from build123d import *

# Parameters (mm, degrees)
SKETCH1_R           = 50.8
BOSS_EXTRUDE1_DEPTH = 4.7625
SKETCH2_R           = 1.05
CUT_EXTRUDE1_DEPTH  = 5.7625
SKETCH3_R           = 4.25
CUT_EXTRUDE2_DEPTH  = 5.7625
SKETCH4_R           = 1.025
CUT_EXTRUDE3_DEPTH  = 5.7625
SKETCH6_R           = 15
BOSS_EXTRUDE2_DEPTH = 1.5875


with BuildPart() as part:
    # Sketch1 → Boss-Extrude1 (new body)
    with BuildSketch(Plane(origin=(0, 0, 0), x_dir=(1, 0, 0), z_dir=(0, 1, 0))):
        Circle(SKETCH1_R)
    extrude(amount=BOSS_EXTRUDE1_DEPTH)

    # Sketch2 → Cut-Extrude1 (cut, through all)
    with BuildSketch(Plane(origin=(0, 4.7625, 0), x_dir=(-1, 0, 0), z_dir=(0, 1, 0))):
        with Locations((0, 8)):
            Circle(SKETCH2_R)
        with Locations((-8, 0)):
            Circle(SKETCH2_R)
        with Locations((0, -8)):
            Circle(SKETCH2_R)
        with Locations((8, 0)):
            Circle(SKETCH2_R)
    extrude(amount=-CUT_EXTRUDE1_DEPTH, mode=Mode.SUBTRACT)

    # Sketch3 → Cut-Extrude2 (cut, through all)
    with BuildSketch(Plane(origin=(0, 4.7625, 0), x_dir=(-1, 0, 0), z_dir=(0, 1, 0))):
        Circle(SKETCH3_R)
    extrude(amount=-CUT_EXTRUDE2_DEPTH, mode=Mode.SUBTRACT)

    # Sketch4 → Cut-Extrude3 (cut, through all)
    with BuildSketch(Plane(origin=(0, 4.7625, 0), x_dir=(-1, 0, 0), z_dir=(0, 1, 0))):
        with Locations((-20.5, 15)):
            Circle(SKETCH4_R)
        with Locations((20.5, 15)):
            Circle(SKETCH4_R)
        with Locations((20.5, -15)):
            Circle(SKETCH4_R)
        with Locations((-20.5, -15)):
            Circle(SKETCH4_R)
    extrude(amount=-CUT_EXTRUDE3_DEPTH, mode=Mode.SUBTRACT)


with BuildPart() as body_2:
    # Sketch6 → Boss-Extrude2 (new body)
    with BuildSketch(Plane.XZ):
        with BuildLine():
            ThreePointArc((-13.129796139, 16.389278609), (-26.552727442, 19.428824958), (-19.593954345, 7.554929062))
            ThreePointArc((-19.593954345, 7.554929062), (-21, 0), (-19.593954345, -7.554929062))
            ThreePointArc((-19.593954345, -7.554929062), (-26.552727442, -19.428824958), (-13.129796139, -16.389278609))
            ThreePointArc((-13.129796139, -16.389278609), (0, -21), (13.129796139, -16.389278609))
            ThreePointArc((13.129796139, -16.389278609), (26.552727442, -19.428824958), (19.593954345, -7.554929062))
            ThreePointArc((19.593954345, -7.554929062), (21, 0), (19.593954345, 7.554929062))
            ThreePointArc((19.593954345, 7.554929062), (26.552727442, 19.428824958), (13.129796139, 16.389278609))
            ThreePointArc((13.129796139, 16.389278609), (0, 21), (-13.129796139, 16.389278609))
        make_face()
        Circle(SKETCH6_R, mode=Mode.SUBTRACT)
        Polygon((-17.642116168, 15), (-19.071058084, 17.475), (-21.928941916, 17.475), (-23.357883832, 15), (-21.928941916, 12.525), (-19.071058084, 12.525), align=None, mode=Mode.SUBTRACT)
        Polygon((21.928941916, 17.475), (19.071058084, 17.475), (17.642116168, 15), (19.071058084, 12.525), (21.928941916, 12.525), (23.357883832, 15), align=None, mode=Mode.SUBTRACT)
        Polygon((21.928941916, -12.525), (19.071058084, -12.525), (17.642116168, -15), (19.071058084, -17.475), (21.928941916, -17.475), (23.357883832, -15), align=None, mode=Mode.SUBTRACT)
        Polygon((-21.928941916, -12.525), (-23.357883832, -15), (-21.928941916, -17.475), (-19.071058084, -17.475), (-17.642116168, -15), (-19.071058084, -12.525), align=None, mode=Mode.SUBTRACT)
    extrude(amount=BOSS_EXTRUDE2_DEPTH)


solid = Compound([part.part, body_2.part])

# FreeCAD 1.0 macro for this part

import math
import FreeCAD as App
import Part
import Sketcher

V = App.Vector
Q = App.Units.Quantity


def add_polygon(sketch, points):
    """Adds a closed chain of lines whose ends are joined by coincident constraints."""
    first, n = sketch.GeometryCount, len(points)
    for a, b in zip(points, points[1:] + points[:1]):
        sketch.addGeometry(Part.LineSegment(App.Vector(*a, 0), App.Vector(*b, 0)), False)
    for i in range(n):
        sketch.addConstraint(Sketcher.Constraint("Coincident", first + i, 2, first + (i + 1) % n, 1))

doc = App.newDocument("Part")
body = doc.addObject("PartDesign::Body", "Body")

# Sketch on XZ plane
sketch1 = body.newObject("Sketcher::SketchObject", "Sketch")
sketch1.AttachmentSupport = (doc.getObject("XZ_Plane"), [""])
sketch1.MapMode = "FlatFace"
sketch1.addGeometry(Part.Circle(V(0, 0, 0), V(0, 0, 1), 51), False)
sketch1.addConstraint([
    Sketcher.Constraint("Coincident", 0, 3, -1, 1),
    Sketcher.Constraint("Diameter", 0, Q("101.6 mm")),
])
pad1 = body.newObject("PartDesign::Pad", "Pad")
pad1.Profile = sketch1
pad1.Length = 4.7625
pad1.Reversed = True

# Sketch on XZ plane
sketch2 = body.newObject("Sketcher::SketchObject", "Sketch001")
sketch2.AttachmentSupport = (doc.getObject("XZ_Plane"), [""])
sketch2.MapMode = "FlatFace"
sketch2.AttachmentOffset = App.Placement(V(0, 0, -4.7625), App.Rotation())
sketch2.addGeometry([
    Part.Circle(V(0, 8, 0), V(0, 0, 1), 1.1),
    Part.Circle(V(8, 0, 0), V(0, 0, 1), 1.1),
    Part.Circle(V(0, -8, 0), V(0, 0, 1), 1.1),
    Part.Circle(V(-8, 0, 0), V(0, 0, 1), 1.1),
], False)
sketch2.addConstraint([
    Sketcher.Constraint("Equal", 0, 1),
    Sketcher.Constraint("Equal", 1, 2),
    Sketcher.Constraint("Equal", 2, 3),
    Sketcher.Constraint("Symmetric", 0, 3, 2, 3, -1, 1),
    Sketcher.Constraint("Symmetric", 1, 3, 3, 3, -1, 1),
    Sketcher.Constraint("PointOnObject", 0, 3, -2),
    Sketcher.Constraint("PointOnObject", 1, 3, -1),
    Sketcher.Constraint("Diameter", 0, Q("2.1 mm")),
    Sketcher.Constraint("DistanceY", -1, 1, 0, 3, Q("8 mm")),
    Sketcher.Constraint("DistanceX", -1, 1, 1, 3, Q("8 mm")),
])
pocket1 = body.newObject("PartDesign::Pocket", "Pocket")
pocket1.Profile = sketch2
pocket1.Type = "ThroughAll"
pocket1.Reversed = True

# Sketch on XZ plane
sketch3 = body.newObject("Sketcher::SketchObject", "Sketch002")
sketch3.AttachmentSupport = (doc.getObject("XZ_Plane"), [""])
sketch3.MapMode = "FlatFace"
sketch3.AttachmentOffset = App.Placement(V(0, 0, -4.7625), App.Rotation())
sketch3.addGeometry(Part.Circle(V(0, 0, 0), V(0, 0, 1), 4.2), False)
sketch3.addConstraint([
    Sketcher.Constraint("Coincident", 0, 3, -1, 1),
    Sketcher.Constraint("Diameter", 0, Q("8.5 mm")),
])
pocket2 = body.newObject("PartDesign::Pocket", "Pocket001")
pocket2.Profile = sketch3
pocket2.Type = "ThroughAll"
pocket2.Reversed = True

# Sketch on XZ plane
sketch4 = body.newObject("Sketcher::SketchObject", "Sketch003")
sketch4.AttachmentSupport = (doc.getObject("XZ_Plane"), [""])
sketch4.MapMode = "FlatFace"
sketch4.AttachmentOffset = App.Placement(V(0, 0, -4.7625), App.Rotation())
sketch4.addGeometry([
    Part.Circle(V(20.5, 15, 0), V(0, 0, 1), 1),
    Part.Circle(V(-20.5, 15, 0), V(0, 0, 1), 1),
    Part.Circle(V(-20.5, -15, 0), V(0, 0, 1), 1),
    Part.Circle(V(20.5, -15, 0), V(0, 0, 1), 1),
], False)
sketch4.addConstraint([
    Sketcher.Constraint("Equal", 0, 1),
    Sketcher.Constraint("Equal", 1, 2),
    Sketcher.Constraint("Equal", 2, 3),
    Sketcher.Constraint("Symmetric", 0, 3, 2, 3, -1, 1),
    Sketcher.Constraint("Symmetric", 1, 3, 3, 3, -1, 1),
    Sketcher.Constraint("Symmetric", 0, 3, 1, 3, -2),
    Sketcher.Constraint("Diameter", 0, Q("2.05 mm")),
    Sketcher.Constraint("DistanceY", -1, 1, 0, 3, Q("15 mm")),
    Sketcher.Constraint("DistanceX", 1, 3, 0, 3, Q("41 mm")),
])
pocket3 = body.newObject("PartDesign::Pocket", "Pocket002")
pocket3.Profile = sketch4
pocket3.Type = "ThroughAll"
pocket3.Reversed = True
body2 = doc.addObject("PartDesign::Body", "Body001")

# Sketch on XZ plane
sketch5 = body2.newObject("Sketcher::SketchObject", "Sketch004")
sketch5.AttachmentSupport = (doc.getObject("XZ_Plane001"), [""])
sketch5.MapMode = "FlatFace"
sketch5.addGeometry(Part.ArcOfCircle(Part.Circle(V(-20.5, 15, 0), V(0, 0, 1), 7.5), math.radians(11), math.radians(277)), False)  # 0
sketch5.addGeometry(Part.ArcOfCircle(Part.Circle(V(0, 0, 0), V(0, 0, 1), 21), math.radians(159), math.radians(201)), False)  # 1
sketch5.addGeometry(Part.ArcOfCircle(Part.Circle(V(-20.5, -15, 0), V(0, 0, 1), 7.5), math.radians(83), math.radians(349)), False)  # 2
sketch5.addGeometry(Part.ArcOfCircle(Part.Circle(V(0, 0, 0), V(0, 0, 1), 21), math.radians(-129), math.radians(-51)), False)  # 3
sketch5.addGeometry(Part.ArcOfCircle(Part.Circle(V(20.5, -15, 0), V(0, 0, 1), 7.5), math.radians(-169), math.radians(97)), False)  # 4
sketch5.addGeometry(Part.ArcOfCircle(Part.Circle(V(0, 0, 0), V(0, 0, 1), 21), math.radians(-21), math.radians(21)), False)  # 5
sketch5.addGeometry(Part.ArcOfCircle(Part.Circle(V(20.5, 15, 0), V(0, 0, 1), 7.5), math.radians(-97), math.radians(169)), False)  # 6
sketch5.addGeometry(Part.ArcOfCircle(Part.Circle(V(0, 0, 0), V(0, 0, 1), 21), math.radians(51), math.radians(129)), False)  # 7
add_polygon(sketch5, [(-23.4, -15), (-21.9, -12.5), (-19.1, -12.5), (-17.6, -15), (-19.1, -17.5), (-21.9, -17.5)])  # lines 8-13
add_polygon(sketch5, [(19.1, -12.5), (21.9, -12.5), (23.4, -15), (21.9, -17.5), (19.1, -17.5), (17.6, -15)])  # lines 14-19
add_polygon(sketch5, [(-19.1, 17.5), (-17.6, 15), (-19.1, 12.5), (-21.9, 12.5), (-23.4, 15), (-21.9, 17.5)])  # lines 20-25
sketch5.addGeometry(Part.Circle(V(0, 0, 0), V(0, 0, 1), 15), False)  # 26
add_polygon(sketch5, [(19.1, 17.5), (21.9, 17.5), (23.4, 15), (21.9, 12.5), (19.1, 12.5), (17.6, 15)])  # lines 27-32
sketch5.addConstraint([
    Sketcher.Constraint("Coincident", 0, 2, 1, 1),
    Sketcher.Constraint("Coincident", 1, 2, 2, 1),
    Sketcher.Constraint("Coincident", 2, 2, 3, 1),
    Sketcher.Constraint("Coincident", 3, 2, 4, 1),
    Sketcher.Constraint("Coincident", 4, 2, 5, 1),
    Sketcher.Constraint("Coincident", 5, 2, 6, 1),
    Sketcher.Constraint("Coincident", 6, 2, 7, 1),
    Sketcher.Constraint("Coincident", 7, 2, 0, 1),
    Sketcher.Constraint("Horizontal", 9),
    Sketcher.Constraint("Horizontal", 12),
    Sketcher.Constraint("Horizontal", 14),
    Sketcher.Constraint("Horizontal", 17),
    Sketcher.Constraint("Horizontal", 22),
    Sketcher.Constraint("Horizontal", 25),
    Sketcher.Constraint("Horizontal", 27),
    Sketcher.Constraint("Horizontal", 30),
    Sketcher.Constraint("Coincident", 1, 3, -1, 1),
    Sketcher.Constraint("Coincident", 3, 3, -1, 1),
    Sketcher.Constraint("Coincident", 5, 3, -1, 1),
    Sketcher.Constraint("Coincident", 7, 3, -1, 1),
    Sketcher.Constraint("Coincident", 26, 3, -1, 1),
    Sketcher.Constraint("Equal", 0, 2),
    Sketcher.Constraint("Equal", 1, 3),
    Sketcher.Constraint("Equal", 2, 4),
    Sketcher.Constraint("Equal", 3, 5),
    Sketcher.Constraint("Equal", 4, 6),
    Sketcher.Constraint("Equal", 5, 7),
    Sketcher.Constraint("Symmetric", 0, 3, 4, 3, -1, 1),
    Sketcher.Constraint("Symmetric", 2, 3, 6, 3, -1, 1),
    Sketcher.Constraint("Symmetric", 18, 2, 20, 2, -1, 1),
    Sketcher.Constraint("Symmetric", 19, 2, 21, 2, -1, 1),
    Sketcher.Constraint("Symmetric", 15, 2, 23, 2, -1, 1),
    Sketcher.Constraint("Symmetric", 16, 2, 24, 2, -1, 1),
    Sketcher.Constraint("Symmetric", 12, 2, 27, 2, -1, 1),
    Sketcher.Constraint("Symmetric", 13, 2, 28, 2, -1, 1),
    Sketcher.Constraint("Symmetric", 8, 2, 29, 2, -1, 1),
    Sketcher.Constraint("Symmetric", 10, 2, 31, 2, -1, 1),
    Sketcher.Constraint("Symmetric", 2, 3, 4, 3, -2),
    Sketcher.Constraint("Symmetric", 8, 2, 14, 2, -2),
    Sketcher.Constraint("Symmetric", 13, 2, 15, 2, -2),
    Sketcher.Constraint("Symmetric", 12, 2, 16, 2, -2),
    Sketcher.Constraint("Symmetric", 10, 2, 18, 2, -2),
    Sketcher.Constraint("Parallel", 8, 11),
    Sketcher.Constraint("Parallel", 10, 13),
    Sketcher.Constraint("Parallel", 13, 15),
    Sketcher.Constraint("Parallel", 15, 18),
    Sketcher.Constraint("Parallel", 16, 19),
    Sketcher.Constraint("Parallel", 18, 20),
    Sketcher.Constraint("Parallel", 20, 23),
    Sketcher.Constraint("Parallel", 28, 31),
    Sketcher.Constraint("Parallel", 29, 32),
    Sketcher.Constraint("Horizontal", 4, 3, 10, 2),
    Sketcher.Constraint("Horizontal", 10, 2, 13, 2),
    Sketcher.Constraint("Vertical", 9, 2, 11, 2),
    Sketcher.Constraint("Diameter", 26, Q("30 mm")),
    Sketcher.Constraint("Radius", 1, Q("21 mm")),
    Sketcher.Constraint("Radius", 0, Q("7.5 mm")),
    Sketcher.Constraint("Angle", 8, Q("60 deg")),
    Sketcher.Constraint("DistanceY", -1, 1, 0, 3, Q("15 mm")),
    Sketcher.Constraint("DistanceX", 2, 3, 4, 3, Q("41 mm")),
    Sketcher.Constraint("DistanceY", 11, 2, 9, 2, Q("4.95 mm")),
    Sketcher.Constraint("DistanceX", 9, 1, 9, 2, Q("2.857884 mm")),
    Sketcher.Constraint("DistanceX", 8, 2, -1, 1, Q("21.928942 mm")),
])
pad2 = body2.newObject("PartDesign::Pad", "Pad001")
pad2.Profile = sketch5
pad2.Length = 1.5875

doc.recompute()
